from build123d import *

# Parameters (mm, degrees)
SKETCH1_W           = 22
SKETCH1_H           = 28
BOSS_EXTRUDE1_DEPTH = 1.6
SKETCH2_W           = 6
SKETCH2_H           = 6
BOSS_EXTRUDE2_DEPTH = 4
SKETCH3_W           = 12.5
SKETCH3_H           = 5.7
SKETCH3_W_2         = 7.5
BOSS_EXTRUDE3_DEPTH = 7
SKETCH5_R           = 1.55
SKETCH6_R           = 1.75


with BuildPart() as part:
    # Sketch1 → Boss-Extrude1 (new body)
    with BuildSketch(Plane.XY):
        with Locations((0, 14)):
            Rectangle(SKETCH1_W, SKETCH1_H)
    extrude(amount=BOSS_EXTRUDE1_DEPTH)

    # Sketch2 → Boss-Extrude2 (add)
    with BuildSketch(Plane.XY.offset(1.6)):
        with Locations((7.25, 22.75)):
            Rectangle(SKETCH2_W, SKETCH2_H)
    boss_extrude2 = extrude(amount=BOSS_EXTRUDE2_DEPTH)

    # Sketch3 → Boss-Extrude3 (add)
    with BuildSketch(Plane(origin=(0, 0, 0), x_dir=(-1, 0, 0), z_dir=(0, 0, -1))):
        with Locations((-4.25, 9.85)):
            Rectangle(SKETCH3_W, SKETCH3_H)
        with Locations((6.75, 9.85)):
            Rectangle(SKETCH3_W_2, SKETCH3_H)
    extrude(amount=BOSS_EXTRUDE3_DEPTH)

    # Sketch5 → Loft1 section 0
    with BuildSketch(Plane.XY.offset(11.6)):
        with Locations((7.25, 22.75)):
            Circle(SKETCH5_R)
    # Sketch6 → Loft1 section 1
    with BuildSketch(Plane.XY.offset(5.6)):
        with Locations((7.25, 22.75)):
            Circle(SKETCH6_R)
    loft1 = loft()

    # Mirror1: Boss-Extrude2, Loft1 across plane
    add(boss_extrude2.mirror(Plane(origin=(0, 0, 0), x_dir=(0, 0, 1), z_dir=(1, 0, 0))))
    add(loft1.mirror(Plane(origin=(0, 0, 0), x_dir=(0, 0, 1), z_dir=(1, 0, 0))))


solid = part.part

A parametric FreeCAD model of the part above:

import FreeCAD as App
import Part
import Sketcher

V = App.Vector
Q = App.Units.Quantity


def add_polygon(sketch, points):
    """Adds a closed chain of lines whose ends are joined by coincident constraints."""
    first, n = sketch.GeometryCount, len(points)
    for a, b in zip(points, points[1:] + points[:1]):
        sketch.addGeometry(Part.LineSegment(App.Vector(*a, 0), App.Vector(*b, 0)), False)
    for i in range(n):
        sketch.addConstraint(Sketcher.Constraint("Coincident", first + i, 2, first + (i + 1) % n, 1))

doc = App.newDocument("Part")
body = doc.addObject("PartDesign::Body", "Body")

sketch1 = doc.addObject("Sketcher::SketchObject", "Sketch")
body.addObject(sketch1)
sketch1.AttachmentSupport = (doc.XY_Plane, [""])
sketch1.MapMode = "FlatFace"
add_polygon(sketch1, [(-11, 28), (-11, 0), (11, 0), (11, 28)])
sketch1.addConstraint([
    Sketcher.Constraint("Vertical", 0),
    Sketcher.Constraint("Horizontal", 1),
    Sketcher.Constraint("Vertical", 2),
    Sketcher.Constraint("Horizontal", 3),
    Sketcher.Constraint("Symmetric", 0, 2, 1, 2, -1, 1),
    Sketcher.Constraint("DistanceX", 1, 1, 1, 2, Q("22 mm")),
    Sketcher.Constraint("DistanceY", 0, 2, 0, 1, Q("28 mm")),
])
pad1 = doc.addObject("PartDesign::Pad", "Pad")
body.addObject(pad1)
pad1.Profile = sketch1
pad1.Length = 1.6

sketch2 = doc.addObject("Sketcher::SketchObject", "Sketch001")
body.addObject(sketch2)
sketch2.AttachmentSupport = (doc.XY_Plane, [""])
sketch2.MapMode = "FlatFace"
sketch2.AttachmentOffset = App.Placement(V(0, 0, 1.6), App.Rotation())
add_polygon(sketch2, [(4.25, 25.75), (4.25, 19.75), (10.25, 19.75), (10.25, 25.75)])
sketch2.addConstraint([
    Sketcher.Constraint("Vertical", 0),
    Sketcher.Constraint("Horizontal", 1),
    Sketcher.Constraint("Vertical", 2),
    Sketcher.Constraint("Horizontal", 3),
    Sketcher.Constraint("Equal", 3, 0),
    Sketcher.Constraint("DistanceX", 1, 1, 1, 2, Q("6 mm")),
    Sketcher.Constraint("DistanceX", -1, 1, 0, 2, Q("4.25 mm")),
    Sketcher.Constraint("DistanceY", -1, 1, 0, 2, Q("19.75 mm")),
])
pad2 = doc.addObject("PartDesign::Pad", "Pad001")
body.addObject(pad2)
pad2.Profile = sketch2
pad2.Length = 4

sketch3 = doc.addObject("Sketcher::SketchObject", "Sketch002")
body.addObject(sketch3)
sketch3.AttachmentSupport = (doc.XY_Plane, [""])
sketch3.MapMode = "FlatFace"
add_polygon(sketch3, [(10.5, 12.7), (10.5, 7), (-2, 7), (-2, 12.7)])
add_polygon(sketch3, [(-3, 12.7), (-3, 7), (-10.5, 7), (-10.5, 12.7)])
sketch3.addConstraint([
    Sketcher.Constraint("Vertical", 0),
    Sketcher.Constraint("Horizontal", 1),
    Sketcher.Constraint("Vertical", 2),
    Sketcher.Constraint("Horizontal", 3),
    Sketcher.Constraint("Vertical", 4),
    Sketcher.Constraint("Horizontal", 5),
    Sketcher.Constraint("Vertical", 6),
    Sketcher.Constraint("Horizontal", 7),
    Sketcher.Constraint("Symmetric", 0, 2, 5, 2, -2),
    Sketcher.Constraint("Horizontal", 3, 2, 6, 2),
    Sketcher.Constraint("DistanceX", 1, 2, 1, 1, Q("12.5 mm")),
    Sketcher.Constraint("DistanceX", 5, 2, 5, 1, Q("7.5 mm")),
    Sketcher.Constraint("DistanceY", 0, 2, 0, 1, Q("5.7 mm")),
    Sketcher.Constraint("DistanceY", -1, 1, 0, 2, Q("7 mm")),
    Sketcher.Constraint("DistanceX", 1, 2, -1, 1, Q("2 mm")),
])
pad3 = doc.addObject("PartDesign::Pad", "Pad002")
body.addObject(pad3)
pad3.Profile = sketch3
pad3.Length = 7
pad3.Reversed = True

sketch4 = doc.addObject("Sketcher::SketchObject", "Sketch003")
body.addObject(sketch4)
sketch4.AttachmentSupport = (doc.XY_Plane, [""])
sketch4.MapMode = "FlatFace"
sketch4.AttachmentOffset = App.Placement(V(0, 0, 11.6), App.Rotation())
sketch4.addGeometry(Part.Circle(V(7.25, 22.75, 0), V(0, 0, 1), 1.55), False)
sketch4.addConstraint([
    Sketcher.Constraint("Diameter", 0, Q("3.1 mm")),
    Sketcher.Constraint("DistanceX", -1, 1, 0, 3, Q("7.25 mm")),
    Sketcher.Constraint("DistanceY", -1, 1, 0, 3, Q("22.75 mm")),
])

sketch5 = doc.addObject("Sketcher::SketchObject", "Sketch004")
body.addObject(sketch5)
sketch5.AttachmentSupport = (doc.XY_Plane, [""])
sketch5.MapMode = "FlatFace"
sketch5.AttachmentOffset = App.Placement(V(0, 0, 5.6), App.Rotation())
sketch5.addGeometry(Part.Circle(V(7.25, 22.75, 0), V(0, 0, 1), 1.75), False)
sketch5.addConstraint([
    Sketcher.Constraint("Diameter", 0, Q("3.5 mm")),
    Sketcher.Constraint("DistanceX", -1, 1, 0, 3, Q("7.25 mm")),
    Sketcher.Constraint("DistanceY", -1, 1, 0, 3, Q("22.75 mm")),
])

additiveloft = doc.addObject("PartDesign::AdditiveLoft", "AdditiveLoft")
body.addObject(additiveloft)
additiveloft.Profile = sketch4
additiveloft.Sections = [sketch5]
doc.recompute()

mirrored = doc.addObject("PartDesign::Mirrored", "Mirrored")
body.addObject(mirrored)
mirrored.Originals = [pad2, additiveloft]
mirrored.MirrorPlane = (doc.YZ_Plane, [""])
body.Tip = mirrored

doc.recompute()
